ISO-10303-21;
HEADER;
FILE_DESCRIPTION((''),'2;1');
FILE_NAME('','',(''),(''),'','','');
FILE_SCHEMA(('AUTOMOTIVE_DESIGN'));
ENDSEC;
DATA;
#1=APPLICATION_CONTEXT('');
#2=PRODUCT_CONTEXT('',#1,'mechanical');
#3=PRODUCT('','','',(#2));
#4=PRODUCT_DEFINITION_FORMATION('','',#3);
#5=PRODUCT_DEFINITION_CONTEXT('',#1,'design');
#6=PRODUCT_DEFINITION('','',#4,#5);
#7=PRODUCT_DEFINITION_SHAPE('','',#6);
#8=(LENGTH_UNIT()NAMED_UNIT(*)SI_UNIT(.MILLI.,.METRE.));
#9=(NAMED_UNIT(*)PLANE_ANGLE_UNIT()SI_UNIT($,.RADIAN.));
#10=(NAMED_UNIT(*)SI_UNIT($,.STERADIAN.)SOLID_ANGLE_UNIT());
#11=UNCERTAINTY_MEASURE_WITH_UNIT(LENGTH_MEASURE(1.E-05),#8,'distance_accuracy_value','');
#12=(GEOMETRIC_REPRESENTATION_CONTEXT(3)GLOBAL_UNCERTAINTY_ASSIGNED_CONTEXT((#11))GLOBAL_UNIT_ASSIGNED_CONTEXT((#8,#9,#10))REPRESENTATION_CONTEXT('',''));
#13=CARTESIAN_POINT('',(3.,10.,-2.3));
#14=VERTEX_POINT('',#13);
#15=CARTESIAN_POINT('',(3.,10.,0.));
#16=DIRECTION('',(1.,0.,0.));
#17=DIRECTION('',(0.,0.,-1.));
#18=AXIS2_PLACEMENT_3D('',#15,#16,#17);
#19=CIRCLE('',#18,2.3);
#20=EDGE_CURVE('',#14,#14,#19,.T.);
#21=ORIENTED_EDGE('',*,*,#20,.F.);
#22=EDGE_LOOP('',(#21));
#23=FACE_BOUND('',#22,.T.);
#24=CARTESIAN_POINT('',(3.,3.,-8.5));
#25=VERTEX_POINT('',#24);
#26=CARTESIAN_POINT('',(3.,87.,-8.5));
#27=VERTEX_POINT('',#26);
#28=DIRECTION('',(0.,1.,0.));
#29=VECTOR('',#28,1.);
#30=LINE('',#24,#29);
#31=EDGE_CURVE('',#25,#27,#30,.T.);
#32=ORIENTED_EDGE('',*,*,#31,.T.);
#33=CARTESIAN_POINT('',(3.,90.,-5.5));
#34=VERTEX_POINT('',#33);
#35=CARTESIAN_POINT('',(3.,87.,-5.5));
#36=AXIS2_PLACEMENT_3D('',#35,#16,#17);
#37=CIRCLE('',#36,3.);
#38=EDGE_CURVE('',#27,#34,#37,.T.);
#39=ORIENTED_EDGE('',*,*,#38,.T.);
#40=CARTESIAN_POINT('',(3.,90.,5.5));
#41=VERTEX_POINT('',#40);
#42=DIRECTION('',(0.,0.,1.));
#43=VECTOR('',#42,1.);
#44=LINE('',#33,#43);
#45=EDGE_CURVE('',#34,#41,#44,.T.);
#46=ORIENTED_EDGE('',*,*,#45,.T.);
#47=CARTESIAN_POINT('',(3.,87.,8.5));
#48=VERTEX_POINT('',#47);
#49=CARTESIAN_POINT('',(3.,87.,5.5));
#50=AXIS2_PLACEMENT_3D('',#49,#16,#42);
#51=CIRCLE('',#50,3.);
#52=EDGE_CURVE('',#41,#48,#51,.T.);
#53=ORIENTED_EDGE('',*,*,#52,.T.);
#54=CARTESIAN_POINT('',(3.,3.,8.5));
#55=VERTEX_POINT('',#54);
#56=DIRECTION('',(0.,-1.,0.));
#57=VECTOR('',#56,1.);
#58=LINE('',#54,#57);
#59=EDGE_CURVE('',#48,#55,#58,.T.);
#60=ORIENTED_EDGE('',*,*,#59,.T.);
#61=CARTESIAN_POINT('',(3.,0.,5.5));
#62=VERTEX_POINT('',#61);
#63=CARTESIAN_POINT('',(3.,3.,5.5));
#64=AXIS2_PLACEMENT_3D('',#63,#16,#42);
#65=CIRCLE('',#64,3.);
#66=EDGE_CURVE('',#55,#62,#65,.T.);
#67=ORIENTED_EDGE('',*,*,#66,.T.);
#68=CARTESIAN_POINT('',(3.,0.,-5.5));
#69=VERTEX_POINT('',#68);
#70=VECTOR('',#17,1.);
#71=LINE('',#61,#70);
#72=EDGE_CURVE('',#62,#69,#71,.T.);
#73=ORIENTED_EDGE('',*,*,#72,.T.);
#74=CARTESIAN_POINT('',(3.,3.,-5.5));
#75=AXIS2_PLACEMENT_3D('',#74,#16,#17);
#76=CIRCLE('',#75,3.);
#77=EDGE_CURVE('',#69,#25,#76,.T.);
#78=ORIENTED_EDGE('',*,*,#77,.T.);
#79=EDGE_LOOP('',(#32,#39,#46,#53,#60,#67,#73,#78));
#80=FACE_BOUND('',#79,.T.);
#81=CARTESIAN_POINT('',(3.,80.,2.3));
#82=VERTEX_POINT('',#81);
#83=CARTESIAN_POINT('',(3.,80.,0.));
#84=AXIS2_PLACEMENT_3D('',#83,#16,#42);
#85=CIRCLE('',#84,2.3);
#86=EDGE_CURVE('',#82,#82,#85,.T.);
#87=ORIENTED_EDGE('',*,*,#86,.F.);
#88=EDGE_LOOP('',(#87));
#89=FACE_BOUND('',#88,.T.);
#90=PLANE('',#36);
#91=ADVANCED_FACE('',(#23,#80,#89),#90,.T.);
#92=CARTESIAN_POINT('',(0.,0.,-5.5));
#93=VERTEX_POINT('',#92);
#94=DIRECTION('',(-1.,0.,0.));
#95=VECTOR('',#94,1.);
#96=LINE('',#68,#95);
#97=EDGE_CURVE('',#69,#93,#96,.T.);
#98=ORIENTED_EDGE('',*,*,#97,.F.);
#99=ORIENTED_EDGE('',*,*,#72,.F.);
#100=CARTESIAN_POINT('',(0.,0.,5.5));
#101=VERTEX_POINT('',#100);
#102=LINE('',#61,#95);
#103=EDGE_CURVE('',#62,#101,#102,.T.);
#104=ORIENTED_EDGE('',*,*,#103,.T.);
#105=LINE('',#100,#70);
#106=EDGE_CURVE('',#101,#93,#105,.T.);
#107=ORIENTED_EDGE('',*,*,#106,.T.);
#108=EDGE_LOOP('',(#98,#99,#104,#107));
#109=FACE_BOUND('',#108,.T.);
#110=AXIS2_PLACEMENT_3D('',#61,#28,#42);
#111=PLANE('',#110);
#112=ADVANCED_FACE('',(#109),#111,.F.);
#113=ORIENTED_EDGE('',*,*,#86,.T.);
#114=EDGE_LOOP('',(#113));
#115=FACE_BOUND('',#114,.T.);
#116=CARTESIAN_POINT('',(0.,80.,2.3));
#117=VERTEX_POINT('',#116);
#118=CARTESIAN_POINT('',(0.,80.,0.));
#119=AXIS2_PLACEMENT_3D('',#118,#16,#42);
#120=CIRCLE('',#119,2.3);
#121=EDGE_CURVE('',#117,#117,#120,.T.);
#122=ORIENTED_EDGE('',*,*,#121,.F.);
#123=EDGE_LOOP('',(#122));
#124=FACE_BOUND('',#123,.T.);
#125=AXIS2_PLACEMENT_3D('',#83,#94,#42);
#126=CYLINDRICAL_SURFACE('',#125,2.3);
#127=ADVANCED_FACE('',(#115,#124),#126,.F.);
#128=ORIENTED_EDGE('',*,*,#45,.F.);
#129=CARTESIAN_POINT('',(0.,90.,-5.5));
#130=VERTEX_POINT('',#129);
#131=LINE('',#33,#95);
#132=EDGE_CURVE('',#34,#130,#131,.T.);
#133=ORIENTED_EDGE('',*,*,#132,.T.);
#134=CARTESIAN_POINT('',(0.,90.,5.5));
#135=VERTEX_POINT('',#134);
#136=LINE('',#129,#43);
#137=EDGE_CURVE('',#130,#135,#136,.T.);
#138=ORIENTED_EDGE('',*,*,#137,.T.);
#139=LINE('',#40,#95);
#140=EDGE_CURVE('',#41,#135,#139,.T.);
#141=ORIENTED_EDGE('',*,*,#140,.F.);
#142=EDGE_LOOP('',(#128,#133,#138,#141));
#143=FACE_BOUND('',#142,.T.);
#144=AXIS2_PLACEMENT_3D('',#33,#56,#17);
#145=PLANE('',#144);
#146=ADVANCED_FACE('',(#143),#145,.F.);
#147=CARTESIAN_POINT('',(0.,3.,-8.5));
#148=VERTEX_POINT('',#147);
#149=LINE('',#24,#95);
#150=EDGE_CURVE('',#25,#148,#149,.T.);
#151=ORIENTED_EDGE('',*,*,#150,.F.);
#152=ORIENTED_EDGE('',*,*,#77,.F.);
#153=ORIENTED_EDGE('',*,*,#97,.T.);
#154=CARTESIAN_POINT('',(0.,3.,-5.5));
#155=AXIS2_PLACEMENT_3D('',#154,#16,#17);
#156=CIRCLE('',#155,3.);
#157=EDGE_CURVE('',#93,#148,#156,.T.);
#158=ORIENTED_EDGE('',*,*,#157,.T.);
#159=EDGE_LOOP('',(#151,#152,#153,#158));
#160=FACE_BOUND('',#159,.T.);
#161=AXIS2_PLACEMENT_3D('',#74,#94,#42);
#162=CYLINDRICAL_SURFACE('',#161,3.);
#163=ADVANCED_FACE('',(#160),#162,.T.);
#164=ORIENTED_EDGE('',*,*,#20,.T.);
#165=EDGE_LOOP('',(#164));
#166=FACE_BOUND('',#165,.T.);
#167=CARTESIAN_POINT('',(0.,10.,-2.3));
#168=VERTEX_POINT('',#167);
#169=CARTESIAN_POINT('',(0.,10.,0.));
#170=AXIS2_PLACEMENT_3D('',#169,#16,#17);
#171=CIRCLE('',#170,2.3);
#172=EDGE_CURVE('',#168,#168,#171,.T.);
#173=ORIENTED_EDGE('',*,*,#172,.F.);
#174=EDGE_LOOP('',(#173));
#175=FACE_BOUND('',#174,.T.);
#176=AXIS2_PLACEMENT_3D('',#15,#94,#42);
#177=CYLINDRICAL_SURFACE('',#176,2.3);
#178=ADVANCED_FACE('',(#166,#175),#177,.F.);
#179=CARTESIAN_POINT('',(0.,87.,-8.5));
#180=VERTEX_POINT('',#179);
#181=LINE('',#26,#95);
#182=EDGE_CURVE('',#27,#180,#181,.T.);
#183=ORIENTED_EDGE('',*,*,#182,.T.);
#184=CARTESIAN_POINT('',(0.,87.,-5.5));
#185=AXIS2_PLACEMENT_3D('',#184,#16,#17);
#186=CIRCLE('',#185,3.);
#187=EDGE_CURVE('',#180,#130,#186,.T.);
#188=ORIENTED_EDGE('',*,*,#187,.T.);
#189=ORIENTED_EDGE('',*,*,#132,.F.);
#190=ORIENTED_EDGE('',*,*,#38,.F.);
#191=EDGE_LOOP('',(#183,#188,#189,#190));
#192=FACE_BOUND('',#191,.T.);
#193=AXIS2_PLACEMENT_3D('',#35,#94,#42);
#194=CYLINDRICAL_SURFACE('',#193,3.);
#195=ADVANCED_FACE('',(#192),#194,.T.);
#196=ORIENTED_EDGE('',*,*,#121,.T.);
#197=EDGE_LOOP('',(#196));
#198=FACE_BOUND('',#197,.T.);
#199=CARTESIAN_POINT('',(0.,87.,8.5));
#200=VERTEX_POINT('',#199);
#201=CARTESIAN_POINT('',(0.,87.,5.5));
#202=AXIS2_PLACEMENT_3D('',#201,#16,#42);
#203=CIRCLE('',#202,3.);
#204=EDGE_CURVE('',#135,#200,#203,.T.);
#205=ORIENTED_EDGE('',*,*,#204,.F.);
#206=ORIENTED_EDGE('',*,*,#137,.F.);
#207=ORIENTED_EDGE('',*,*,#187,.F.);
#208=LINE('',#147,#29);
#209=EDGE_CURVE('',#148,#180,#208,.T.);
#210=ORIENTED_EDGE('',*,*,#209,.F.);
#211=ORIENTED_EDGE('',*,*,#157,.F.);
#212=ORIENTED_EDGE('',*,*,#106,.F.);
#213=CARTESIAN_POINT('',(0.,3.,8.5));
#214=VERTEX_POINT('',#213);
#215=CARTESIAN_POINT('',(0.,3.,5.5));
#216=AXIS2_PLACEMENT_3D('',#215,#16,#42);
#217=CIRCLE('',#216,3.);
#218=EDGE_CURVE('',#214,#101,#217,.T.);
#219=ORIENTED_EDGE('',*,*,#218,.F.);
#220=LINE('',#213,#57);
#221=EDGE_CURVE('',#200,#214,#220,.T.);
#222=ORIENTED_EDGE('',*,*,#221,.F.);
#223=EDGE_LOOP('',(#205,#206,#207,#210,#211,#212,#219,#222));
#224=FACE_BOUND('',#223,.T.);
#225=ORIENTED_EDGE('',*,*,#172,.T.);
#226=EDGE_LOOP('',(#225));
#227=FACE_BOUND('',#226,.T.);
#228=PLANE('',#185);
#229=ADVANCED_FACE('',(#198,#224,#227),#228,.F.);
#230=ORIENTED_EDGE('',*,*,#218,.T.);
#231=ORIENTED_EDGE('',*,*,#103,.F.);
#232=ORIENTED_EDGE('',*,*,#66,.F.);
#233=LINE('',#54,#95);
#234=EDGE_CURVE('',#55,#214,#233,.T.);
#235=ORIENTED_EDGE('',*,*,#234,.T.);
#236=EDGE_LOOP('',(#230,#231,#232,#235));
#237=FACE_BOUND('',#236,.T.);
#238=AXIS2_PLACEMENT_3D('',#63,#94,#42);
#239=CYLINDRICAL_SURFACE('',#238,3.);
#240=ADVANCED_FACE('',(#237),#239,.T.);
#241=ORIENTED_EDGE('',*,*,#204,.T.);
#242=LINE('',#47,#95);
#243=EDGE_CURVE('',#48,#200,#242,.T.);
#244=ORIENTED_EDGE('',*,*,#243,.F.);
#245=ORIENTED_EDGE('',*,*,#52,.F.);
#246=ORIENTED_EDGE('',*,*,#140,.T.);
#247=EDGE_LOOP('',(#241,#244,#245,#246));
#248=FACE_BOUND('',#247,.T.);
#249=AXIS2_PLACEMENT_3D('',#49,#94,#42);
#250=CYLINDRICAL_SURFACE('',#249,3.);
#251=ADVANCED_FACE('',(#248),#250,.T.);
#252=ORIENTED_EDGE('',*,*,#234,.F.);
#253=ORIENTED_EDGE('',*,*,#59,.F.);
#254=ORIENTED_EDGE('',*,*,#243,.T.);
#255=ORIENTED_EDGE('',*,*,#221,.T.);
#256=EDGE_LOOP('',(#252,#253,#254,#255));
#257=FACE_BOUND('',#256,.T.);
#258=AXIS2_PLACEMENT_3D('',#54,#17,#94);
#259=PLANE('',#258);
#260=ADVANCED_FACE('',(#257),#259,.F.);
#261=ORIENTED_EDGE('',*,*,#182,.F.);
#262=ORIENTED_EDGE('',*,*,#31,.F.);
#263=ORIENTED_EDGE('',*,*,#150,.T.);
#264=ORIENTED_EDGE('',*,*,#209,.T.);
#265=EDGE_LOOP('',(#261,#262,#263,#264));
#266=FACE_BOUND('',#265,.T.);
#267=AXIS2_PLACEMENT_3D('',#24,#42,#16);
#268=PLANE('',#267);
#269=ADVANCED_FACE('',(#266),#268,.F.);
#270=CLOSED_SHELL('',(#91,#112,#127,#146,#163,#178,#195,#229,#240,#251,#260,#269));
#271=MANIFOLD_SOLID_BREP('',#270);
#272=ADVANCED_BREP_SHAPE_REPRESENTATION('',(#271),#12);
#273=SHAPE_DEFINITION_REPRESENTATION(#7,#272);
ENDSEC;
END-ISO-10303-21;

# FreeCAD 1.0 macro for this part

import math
import FreeCAD as App
import Part
import Sketcher
from FreeCAD import Vector
Q = App.Units.Quantity

doc = App.newDocument("Part")
params = doc.addObject("Spreadsheet::Sheet", "Params")
for row, (alias, value) in enumerate([
    ("sketch1_radius", "3 mm"),
    ("sketch1_diameter", "4.6 mm"),
    ("sketch1_width", "84 mm"),
    ("sketch1_height", "11 mm"),
    ("pad1_length", "3 mm"),
], start=1):
    params.set(f"A{row}", alias)
    params.set(f"B{row}", "=" + value)
    params.setAlias(f"B{row}", alias)

body = doc.addObject("PartDesign::Body", "Body")

# Sketch on YZ plane
sketch1 = doc.addObject("Sketcher::SketchObject", "Sketch")
body.addObject(sketch1)
sketch1.AttachmentSupport = (doc.YZ_Plane, [""])
sketch1.MapMode = "FlatFace"
sketch1.addGeometry([
    Part.LineSegment(Vector(0, 5.5, 0), Vector(0, -5.5, 0)),  # 0
    Part.ArcOfCircle(Part.Circle(Vector(3, -5.5, 0), Vector(0, 0, 1), 3), math.radians(180), math.radians(270)),  # 1
    Part.LineSegment(Vector(3, -8.5, 0), Vector(87, -8.5, 0)),  # 2
    Part.ArcOfCircle(Part.Circle(Vector(87, -5.5, 0), Vector(0, 0, 1), 3), math.radians(-90), math.radians(0)),  # 3
    Part.LineSegment(Vector(90, -5.5, 0), Vector(90, 5.5, 0)),  # 4
    Part.ArcOfCircle(Part.Circle(Vector(87, 5.5, 0), Vector(0, 0, 1), 3), math.radians(0), math.radians(90)),  # 5
    Part.LineSegment(Vector(87, 8.5, 0), Vector(3, 8.5, 0)),  # 6
    Part.ArcOfCircle(Part.Circle(Vector(3, 5.5, 0), Vector(0, 0, 1), 3), math.radians(90), math.radians(180)),  # 7
    Part.Circle(Vector(10, 0, 0), Vector(0, 0, 1), 2.3),  # 8
    Part.Circle(Vector(80, 0, 0), Vector(0, 0, 1), 2.3),  # 9
], False)
sketch1.addConstraint([
    Sketcher.Constraint("Tangent", 0, 2, 1, 1),
    Sketcher.Constraint("Tangent", 1, 2, 2, 1),
    Sketcher.Constraint("Tangent", 2, 2, 3, 1),
    Sketcher.Constraint("Tangent", 3, 2, 4, 1),
    Sketcher.Constraint("Tangent", 4, 2, 5, 1),
    Sketcher.Constraint("Tangent", 5, 2, 6, 1),
    Sketcher.Constraint("Tangent", 6, 2, 7, 1),
    Sketcher.Constraint("Tangent", 7, 2, 0, 1),
    Sketcher.Constraint("Vertical", 0),
    Sketcher.Constraint("Horizontal", 2),
    Sketcher.Constraint("Vertical", 4),
    Sketcher.Constraint("Horizontal", 6),
    Sketcher.Constraint("Equal", 1, 3),
    Sketcher.Constraint("Equal", 3, 5),
    Sketcher.Constraint("Equal", 5, 7),
    Sketcher.Constraint("Equal", 8, 9),
    Sketcher.Constraint("Symmetric", 0, 2, 7, 2, -1, 1),
    Sketcher.Constraint("PointOnObject", 8, 3, -1),
    Sketcher.Constraint("PointOnObject", 9, 3, -1),
    Sketcher.Constraint("Radius", 1, Q("3 mm")),
    Sketcher.Constraint("Diameter", 8, Q("4.6 mm")),
    Sketcher.Constraint("DistanceX", 2, 1, 2, 2, Q("84 mm")),
    Sketcher.Constraint("DistanceY", 0, 2, 0, 1, Q("11 mm")),
    Sketcher.Constraint("DistanceX", -1, 1, 8, 3, Q("10 mm")),
    Sketcher.Constraint("DistanceX", -1, 1, 9, 3, Q("80 mm")),
])
sketch1.setExpression("Constraints[19]", "Params.sketch1_radius")
sketch1.setExpression("Constraints[20]", "Params.sketch1_diameter")
sketch1.setExpression("Constraints[21]", "Params.sketch1_width")
sketch1.setExpression("Constraints[22]", "Params.sketch1_height")
pad1 = doc.addObject("PartDesign::Pad", "Pad")
body.addObject(pad1)
pad1.Profile = sketch1
pad1.setExpression("Length", "Params.pad1_length")

doc.recompute()
